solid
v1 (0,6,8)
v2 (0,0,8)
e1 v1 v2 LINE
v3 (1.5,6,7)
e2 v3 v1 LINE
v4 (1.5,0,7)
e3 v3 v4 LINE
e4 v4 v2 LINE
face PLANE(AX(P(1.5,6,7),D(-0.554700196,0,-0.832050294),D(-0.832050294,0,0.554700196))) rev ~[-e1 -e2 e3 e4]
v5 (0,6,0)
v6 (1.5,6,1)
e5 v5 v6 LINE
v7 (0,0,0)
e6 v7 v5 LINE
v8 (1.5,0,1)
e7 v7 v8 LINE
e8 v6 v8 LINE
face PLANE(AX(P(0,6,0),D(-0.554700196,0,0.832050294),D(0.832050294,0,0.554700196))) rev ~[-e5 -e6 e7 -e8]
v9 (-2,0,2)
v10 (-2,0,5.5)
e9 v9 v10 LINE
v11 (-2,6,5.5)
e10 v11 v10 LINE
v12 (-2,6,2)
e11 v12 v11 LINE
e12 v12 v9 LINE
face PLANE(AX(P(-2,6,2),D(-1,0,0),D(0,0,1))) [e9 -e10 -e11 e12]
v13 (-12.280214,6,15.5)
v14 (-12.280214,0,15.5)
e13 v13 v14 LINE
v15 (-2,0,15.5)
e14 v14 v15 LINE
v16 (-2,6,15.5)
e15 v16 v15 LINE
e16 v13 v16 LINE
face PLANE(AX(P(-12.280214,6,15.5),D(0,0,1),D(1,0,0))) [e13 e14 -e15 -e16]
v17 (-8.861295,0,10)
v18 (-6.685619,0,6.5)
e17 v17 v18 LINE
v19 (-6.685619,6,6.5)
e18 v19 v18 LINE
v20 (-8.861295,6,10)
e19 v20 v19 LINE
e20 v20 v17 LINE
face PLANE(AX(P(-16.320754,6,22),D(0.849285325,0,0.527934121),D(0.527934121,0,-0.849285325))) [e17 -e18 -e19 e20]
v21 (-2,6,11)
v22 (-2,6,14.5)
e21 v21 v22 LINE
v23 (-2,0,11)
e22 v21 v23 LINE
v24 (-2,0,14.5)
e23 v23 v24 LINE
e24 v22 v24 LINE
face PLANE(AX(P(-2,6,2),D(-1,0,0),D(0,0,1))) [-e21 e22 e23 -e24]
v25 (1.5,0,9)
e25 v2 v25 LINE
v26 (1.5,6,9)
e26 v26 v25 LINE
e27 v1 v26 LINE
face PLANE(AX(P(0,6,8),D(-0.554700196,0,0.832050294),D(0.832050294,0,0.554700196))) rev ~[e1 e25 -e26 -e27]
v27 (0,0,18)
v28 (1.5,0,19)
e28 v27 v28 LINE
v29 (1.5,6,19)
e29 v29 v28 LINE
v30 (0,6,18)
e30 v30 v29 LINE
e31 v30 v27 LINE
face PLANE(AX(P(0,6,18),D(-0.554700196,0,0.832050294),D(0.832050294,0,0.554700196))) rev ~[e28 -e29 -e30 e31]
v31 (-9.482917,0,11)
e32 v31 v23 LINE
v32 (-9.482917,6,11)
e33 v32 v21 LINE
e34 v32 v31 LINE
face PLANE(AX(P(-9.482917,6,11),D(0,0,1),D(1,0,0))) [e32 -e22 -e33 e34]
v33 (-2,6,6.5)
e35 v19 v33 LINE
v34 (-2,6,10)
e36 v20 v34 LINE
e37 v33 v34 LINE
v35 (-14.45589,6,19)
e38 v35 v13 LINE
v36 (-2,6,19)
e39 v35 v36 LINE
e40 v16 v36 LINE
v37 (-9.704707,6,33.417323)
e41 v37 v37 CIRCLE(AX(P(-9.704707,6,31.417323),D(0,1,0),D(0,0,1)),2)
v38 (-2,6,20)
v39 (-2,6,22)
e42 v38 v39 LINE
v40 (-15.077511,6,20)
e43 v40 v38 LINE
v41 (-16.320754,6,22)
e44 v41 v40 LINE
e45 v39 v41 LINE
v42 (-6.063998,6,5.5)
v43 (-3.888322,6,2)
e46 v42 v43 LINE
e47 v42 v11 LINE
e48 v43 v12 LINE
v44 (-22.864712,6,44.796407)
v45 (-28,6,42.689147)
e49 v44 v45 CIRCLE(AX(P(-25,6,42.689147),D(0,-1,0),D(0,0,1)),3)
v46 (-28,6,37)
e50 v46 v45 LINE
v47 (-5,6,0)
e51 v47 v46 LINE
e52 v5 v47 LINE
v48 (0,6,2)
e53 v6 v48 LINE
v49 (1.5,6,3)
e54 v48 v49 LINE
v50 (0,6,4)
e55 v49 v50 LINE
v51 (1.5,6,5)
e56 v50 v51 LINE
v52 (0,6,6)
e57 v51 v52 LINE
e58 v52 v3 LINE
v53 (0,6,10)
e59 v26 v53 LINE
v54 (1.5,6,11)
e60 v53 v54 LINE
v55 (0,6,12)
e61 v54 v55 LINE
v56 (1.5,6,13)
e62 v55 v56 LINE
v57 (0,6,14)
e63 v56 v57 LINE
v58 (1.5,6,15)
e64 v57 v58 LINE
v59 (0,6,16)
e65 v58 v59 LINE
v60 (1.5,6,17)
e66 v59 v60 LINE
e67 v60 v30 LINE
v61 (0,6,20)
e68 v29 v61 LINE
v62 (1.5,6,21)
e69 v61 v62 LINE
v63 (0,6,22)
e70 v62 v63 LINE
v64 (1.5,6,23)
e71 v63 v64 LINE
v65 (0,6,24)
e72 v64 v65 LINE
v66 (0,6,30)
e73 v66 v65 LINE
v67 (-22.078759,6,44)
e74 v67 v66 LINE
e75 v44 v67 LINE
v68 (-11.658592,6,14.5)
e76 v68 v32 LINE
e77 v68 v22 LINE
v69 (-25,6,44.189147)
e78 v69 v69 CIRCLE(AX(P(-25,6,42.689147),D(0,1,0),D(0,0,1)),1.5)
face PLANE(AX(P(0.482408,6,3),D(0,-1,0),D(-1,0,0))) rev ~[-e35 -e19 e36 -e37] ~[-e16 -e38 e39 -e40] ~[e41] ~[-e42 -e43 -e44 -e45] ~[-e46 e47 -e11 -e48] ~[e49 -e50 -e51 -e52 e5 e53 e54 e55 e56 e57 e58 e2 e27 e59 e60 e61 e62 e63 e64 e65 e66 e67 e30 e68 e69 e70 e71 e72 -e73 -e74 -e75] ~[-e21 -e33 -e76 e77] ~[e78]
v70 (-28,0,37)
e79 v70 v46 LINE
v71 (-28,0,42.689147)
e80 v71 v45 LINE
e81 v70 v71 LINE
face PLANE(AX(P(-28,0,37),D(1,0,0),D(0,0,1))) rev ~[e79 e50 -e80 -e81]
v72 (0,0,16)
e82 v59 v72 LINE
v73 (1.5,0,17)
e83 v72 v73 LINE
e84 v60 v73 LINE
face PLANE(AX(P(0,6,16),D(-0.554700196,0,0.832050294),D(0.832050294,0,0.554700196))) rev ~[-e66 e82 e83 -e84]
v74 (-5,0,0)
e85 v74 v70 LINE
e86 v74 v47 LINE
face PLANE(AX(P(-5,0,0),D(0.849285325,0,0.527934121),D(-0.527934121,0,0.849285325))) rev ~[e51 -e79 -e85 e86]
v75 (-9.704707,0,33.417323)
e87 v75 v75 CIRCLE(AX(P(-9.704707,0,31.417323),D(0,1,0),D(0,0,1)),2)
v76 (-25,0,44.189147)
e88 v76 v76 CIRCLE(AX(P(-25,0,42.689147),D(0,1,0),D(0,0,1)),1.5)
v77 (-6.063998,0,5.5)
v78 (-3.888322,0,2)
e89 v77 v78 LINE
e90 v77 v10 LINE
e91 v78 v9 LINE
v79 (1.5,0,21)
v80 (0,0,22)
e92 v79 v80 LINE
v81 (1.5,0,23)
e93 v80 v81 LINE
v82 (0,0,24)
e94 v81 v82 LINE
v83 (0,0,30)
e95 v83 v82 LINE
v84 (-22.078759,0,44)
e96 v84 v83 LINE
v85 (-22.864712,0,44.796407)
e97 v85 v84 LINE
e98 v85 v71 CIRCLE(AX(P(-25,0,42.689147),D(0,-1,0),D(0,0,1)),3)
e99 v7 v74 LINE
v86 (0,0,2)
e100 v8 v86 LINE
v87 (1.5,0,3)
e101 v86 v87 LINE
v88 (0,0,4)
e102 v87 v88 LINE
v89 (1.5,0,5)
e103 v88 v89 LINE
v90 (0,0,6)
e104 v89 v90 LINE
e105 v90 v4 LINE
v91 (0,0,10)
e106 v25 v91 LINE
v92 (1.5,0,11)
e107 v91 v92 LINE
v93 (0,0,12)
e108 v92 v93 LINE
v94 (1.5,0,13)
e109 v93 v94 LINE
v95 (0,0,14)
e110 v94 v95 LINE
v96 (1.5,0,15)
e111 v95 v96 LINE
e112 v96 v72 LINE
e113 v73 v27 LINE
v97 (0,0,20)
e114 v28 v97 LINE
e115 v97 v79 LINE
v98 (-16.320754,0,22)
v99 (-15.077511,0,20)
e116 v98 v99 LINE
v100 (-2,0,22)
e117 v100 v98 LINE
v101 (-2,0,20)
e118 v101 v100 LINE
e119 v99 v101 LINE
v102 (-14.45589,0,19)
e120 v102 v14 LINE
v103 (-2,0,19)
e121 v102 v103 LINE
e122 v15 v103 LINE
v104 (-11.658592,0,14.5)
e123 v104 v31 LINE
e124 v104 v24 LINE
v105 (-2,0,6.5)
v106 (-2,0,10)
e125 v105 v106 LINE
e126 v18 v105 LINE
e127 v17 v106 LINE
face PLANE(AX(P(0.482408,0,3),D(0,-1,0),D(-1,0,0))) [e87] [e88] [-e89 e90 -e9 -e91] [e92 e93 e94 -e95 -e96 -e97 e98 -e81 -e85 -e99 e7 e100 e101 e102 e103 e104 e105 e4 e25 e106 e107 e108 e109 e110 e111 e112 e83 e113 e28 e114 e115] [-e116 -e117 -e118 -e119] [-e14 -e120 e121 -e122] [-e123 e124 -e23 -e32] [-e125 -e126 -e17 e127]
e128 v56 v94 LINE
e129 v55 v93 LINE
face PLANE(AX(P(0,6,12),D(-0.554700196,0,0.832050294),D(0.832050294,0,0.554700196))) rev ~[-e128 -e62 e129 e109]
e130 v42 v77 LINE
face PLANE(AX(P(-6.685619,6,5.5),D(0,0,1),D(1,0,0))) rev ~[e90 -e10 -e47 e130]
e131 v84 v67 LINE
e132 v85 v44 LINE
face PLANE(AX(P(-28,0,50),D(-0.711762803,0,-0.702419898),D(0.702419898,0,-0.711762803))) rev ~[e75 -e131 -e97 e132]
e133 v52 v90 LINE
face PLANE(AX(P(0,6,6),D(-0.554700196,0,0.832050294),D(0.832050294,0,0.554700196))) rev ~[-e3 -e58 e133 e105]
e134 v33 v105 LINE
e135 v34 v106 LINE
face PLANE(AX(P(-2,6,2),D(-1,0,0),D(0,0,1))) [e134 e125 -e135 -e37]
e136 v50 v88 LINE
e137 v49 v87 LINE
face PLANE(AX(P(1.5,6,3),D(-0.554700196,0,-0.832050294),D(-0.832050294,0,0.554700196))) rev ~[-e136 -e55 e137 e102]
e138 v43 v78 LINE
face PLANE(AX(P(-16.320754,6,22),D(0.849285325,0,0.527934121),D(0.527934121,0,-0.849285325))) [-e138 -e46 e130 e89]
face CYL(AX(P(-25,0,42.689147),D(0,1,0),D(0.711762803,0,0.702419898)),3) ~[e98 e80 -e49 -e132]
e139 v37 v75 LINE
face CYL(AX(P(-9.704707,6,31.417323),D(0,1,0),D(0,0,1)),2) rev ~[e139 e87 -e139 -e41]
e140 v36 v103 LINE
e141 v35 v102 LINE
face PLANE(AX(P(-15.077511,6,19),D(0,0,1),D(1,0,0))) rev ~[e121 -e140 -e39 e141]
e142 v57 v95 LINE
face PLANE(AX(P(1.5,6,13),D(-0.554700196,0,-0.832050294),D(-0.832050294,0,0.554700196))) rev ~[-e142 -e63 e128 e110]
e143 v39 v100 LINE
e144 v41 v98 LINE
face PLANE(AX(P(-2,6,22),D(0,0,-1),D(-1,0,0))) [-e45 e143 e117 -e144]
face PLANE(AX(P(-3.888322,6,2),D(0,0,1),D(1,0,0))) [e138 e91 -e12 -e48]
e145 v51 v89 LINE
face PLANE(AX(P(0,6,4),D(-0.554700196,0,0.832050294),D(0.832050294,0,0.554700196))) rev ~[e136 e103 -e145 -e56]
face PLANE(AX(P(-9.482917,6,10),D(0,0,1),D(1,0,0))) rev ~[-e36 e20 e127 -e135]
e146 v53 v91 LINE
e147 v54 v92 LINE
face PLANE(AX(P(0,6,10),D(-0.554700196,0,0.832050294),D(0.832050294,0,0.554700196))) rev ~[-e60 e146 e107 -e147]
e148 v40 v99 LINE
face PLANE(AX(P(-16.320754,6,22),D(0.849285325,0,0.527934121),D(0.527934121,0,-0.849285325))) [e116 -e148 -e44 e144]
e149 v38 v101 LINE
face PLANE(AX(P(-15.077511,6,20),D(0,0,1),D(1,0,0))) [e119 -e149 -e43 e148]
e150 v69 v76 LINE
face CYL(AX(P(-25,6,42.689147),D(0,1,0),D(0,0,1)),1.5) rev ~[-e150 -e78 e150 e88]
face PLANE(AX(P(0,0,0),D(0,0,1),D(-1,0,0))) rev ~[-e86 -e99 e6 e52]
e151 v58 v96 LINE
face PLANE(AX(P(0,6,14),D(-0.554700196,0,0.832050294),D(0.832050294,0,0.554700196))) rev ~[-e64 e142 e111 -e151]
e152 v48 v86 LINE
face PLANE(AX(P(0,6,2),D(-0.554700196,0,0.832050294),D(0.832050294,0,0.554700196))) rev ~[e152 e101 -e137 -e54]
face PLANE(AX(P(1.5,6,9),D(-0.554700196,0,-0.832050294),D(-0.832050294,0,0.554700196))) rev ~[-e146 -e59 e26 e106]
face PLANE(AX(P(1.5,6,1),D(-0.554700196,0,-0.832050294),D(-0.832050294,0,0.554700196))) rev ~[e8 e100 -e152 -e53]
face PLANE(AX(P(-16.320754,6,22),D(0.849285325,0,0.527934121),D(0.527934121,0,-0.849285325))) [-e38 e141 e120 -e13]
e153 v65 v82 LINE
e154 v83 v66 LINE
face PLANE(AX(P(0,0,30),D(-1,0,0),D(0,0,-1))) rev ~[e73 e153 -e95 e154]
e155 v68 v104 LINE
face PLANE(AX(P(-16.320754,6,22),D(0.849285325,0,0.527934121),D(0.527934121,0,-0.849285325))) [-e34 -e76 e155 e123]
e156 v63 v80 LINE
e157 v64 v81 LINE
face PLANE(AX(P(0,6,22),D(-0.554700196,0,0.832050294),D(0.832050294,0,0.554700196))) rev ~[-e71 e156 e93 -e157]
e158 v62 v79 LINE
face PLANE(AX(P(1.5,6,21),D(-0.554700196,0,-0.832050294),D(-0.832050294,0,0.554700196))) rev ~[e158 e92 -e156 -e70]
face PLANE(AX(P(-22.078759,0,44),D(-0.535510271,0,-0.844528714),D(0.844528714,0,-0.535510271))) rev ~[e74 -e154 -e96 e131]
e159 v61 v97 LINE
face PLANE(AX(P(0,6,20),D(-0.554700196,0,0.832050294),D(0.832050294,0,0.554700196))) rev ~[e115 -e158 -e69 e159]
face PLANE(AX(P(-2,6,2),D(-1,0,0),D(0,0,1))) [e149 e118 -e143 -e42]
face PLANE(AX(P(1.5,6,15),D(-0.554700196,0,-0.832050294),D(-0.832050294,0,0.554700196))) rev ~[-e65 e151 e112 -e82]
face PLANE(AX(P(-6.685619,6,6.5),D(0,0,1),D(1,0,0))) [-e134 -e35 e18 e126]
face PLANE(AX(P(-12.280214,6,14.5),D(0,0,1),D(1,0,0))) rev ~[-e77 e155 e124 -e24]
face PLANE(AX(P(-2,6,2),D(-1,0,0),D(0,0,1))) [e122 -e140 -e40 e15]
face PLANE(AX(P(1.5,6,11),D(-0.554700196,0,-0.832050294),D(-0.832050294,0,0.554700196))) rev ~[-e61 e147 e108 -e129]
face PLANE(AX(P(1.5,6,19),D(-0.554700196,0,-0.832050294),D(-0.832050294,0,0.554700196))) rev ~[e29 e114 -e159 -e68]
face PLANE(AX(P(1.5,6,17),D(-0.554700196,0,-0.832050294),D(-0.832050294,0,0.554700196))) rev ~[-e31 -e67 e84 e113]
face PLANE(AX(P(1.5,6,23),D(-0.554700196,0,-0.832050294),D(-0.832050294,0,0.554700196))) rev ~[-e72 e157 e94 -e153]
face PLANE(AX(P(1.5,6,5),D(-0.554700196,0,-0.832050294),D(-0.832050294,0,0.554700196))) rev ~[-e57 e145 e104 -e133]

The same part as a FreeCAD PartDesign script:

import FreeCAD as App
import Part
import Sketcher

V = App.Vector
Q = App.Units.Quantity


def edges_at(feature, points):
    """Names of the edges that pass closest to the given points."""
    edges = feature.Shape.Edges
    near = lambda p: min(range(len(edges)), key=lambda i: edges[i].distToShape(Part.Vertex(*p))[0])
    return sorted({f"Edge{near(p) + 1}" for p in points})

doc = App.newDocument("Part")
body = doc.addObject("PartDesign::Body", "Body")

sketch1 = body.newObject("Sketcher::SketchObject", "Sketch")
sketch1.AttachmentSupport = (doc.getObject("XZ_Plane"), [""])
sketch1.MapMode = "FlatFace"
sketch1.addGeometry(Part.LineSegment(V(0, 0, 0), V(-5, 0, 0)), False)
sketch1.addGeometry(Part.LineSegment(V(-5, 0, 0), V(-28, 37, 0)), False)
sketch1.addGeometry(Part.LineSegment(V(-28, 37, 0), V(-28, 50, 0)), False)
sketch1.addGeometry(Part.LineSegment(V(-28, 50, 0), V(-22, 44, 0)), False)
sketch1.addGeometry(Part.LineSegment(V(-22, 44, 0), V(0, 30, 0)), False)
sketch1.addGeometry(Part.LineSegment(V(0, 30, 0), V(0, 0, 0)), False)
sketch1.addConstraint(Sketcher.Constraint("Coincident", 0, 2, 1, 1))
sketch1.addConstraint(Sketcher.Constraint("Coincident", 1, 2, 2, 1))
sketch1.addConstraint(Sketcher.Constraint("Coincident", 2, 2, 3, 1))
sketch1.addConstraint(Sketcher.Constraint("Coincident", 3, 2, 4, 1))
sketch1.addConstraint(Sketcher.Constraint("Coincident", 4, 2, 5, 1))
sketch1.addConstraint(Sketcher.Constraint("Coincident", 5, 2, 0, 1))
sketch1.addConstraint(Sketcher.Constraint("Horizontal", 0))
sketch1.addConstraint(Sketcher.Constraint("Vertical", 2))
sketch1.addConstraint(Sketcher.Constraint("Vertical", 5))
sketch1.addConstraint(Sketcher.Constraint("Coincident", 5, 2, -1, 1))
sketch1.addConstraint(Sketcher.Constraint("DistanceX", 0, 2, 0, 1, Q("5 mm")))
sketch1.addConstraint(Sketcher.Constraint("DistanceY", 2, 1, 2, 2, Q("13 mm")))
sketch1.addConstraint(Sketcher.Constraint("DistanceY", 5, 2, 5, 1, Q("30 mm")))
sketch1.addConstraint(Sketcher.Constraint("DistanceX", 1, 2, -1, 1, Q("28 mm")))
sketch1.addConstraint(Sketcher.Constraint("DistanceY", -1, 1, 1, 2, Q("37 mm")))
sketch1.addConstraint(Sketcher.Constraint("DistanceY", -1, 1, 3, 2, Q("44 mm")))
sketch1.addConstraint(Sketcher.Constraint("Distance", 4, Q("26.143289 mm")))
pad1 = body.newObject("PartDesign::Pad", "Pad")
pad1.Profile = sketch1
pad1.Length = 6
pad1.Reversed = True

sketch2 = body.newObject("Sketcher::SketchObject", "Sketch001")
sketch2.AttachmentSupport = (doc.getObject("XZ_Plane"), [""])
sketch2.MapMode = "FlatFace"
sketch2.AttachmentOffset = App.Placement(V(0, 0, -6), App.Rotation())
sketch2.addGeometry(Part.LineSegment(V(-2, 2, 0), V(-3.9, 2, 0)), False)
sketch2.addGeometry(Part.LineSegment(V(-3.9, 2, 0), V(-16.3, 22, 0)), False)
sketch2.addGeometry(Part.LineSegment(V(-16.3, 22, 0), V(-2, 22, 0)), False)
sketch2.addGeometry(Part.LineSegment(V(-2, 22, 0), V(-2, 2, 0)), False)
sketch2.addConstraint(Sketcher.Constraint("Coincident", 0, 2, 1, 1))
sketch2.addConstraint(Sketcher.Constraint("Coincident", 1, 2, 2, 1))
sketch2.addConstraint(Sketcher.Constraint("Coincident", 2, 2, 3, 1))
sketch2.addConstraint(Sketcher.Constraint("Coincident", 3, 2, 0, 1))
sketch2.addConstraint(Sketcher.Constraint("Horizontal", 0))
sketch2.addConstraint(Sketcher.Constraint("Horizontal", 2))
sketch2.addConstraint(Sketcher.Constraint("Vertical", 3))
sketch2.addConstraint(Sketcher.Constraint("DistanceY", 3, 2, 3, 1, Q("20 mm")))
sketch2.addConstraint(Sketcher.Constraint("DistanceY", -1, 1, 0, 2, Q("2 mm")))
sketch2.addConstraint(Sketcher.Constraint("DistanceX", 2, 2, -1, 1, Q("2 mm")))
sketch2.addConstraint(Sketcher.Constraint("Distance", 1, Q("23.549212 mm")))
sketch2.addConstraint(Sketcher.Constraint("DistanceX", 0, 2, 0, 1, Q("1.888322 mm")))
pocket1 = body.newObject("PartDesign::Pocket", "Pocket")
pocket1.Profile = sketch2
pocket1.Type = "ThroughAll"
pocket1.Reversed = True

sketch3 = body.newObject("Sketcher::SketchObject", "Sketch002")
sketch3.AttachmentSupport = (doc.getObject("XZ_Plane"), [""])
sketch3.MapMode = "FlatFace"
sketch3.AttachmentOffset = App.Placement(V(0, 0, -6), App.Rotation())
sketch3.addGeometry(Part.LineSegment(V(-6.7, 5.5, 0), V(-6.7, 6.5, 0)), False)
sketch3.addGeometry(Part.LineSegment(V(-6.7, 6.5, 0), V(-2, 6.5, 0)), False)
sketch3.addGeometry(Part.LineSegment(V(-2, 6.5, 0), V(-2, 5.5, 0)), False)
sketch3.addGeometry(Part.LineSegment(V(-2, 5.5, 0), V(-6.7, 5.5, 0)), False)
sketch3.addGeometry(Part.LineSegment(V(-9.5, 10, 0), V(-9.5, 11, 0)), False)
sketch3.addGeometry(Part.LineSegment(V(-9.5, 11, 0), V(-2, 11, 0)), False)
sketch3.addGeometry(Part.LineSegment(V(-2, 11, 0), V(-2, 10, 0)), False)
sketch3.addGeometry(Part.LineSegment(V(-2, 10, 0), V(-9.5, 10, 0)), False)
sketch3.addGeometry(Part.LineSegment(V(-12.3, 14.5, 0), V(-12.3, 15.5, 0)), False)
sketch3.addGeometry(Part.LineSegment(V(-12.3, 15.5, 0), V(-2, 15.5, 0)), False)
sketch3.addGeometry(Part.LineSegment(V(-2, 15.5, 0), V(-2, 14.5, 0)), False)
sketch3.addGeometry(Part.LineSegment(V(-2, 14.5, 0), V(-12.3, 14.5, 0)), False)
sketch3.addGeometry(Part.LineSegment(V(-15.1, 19, 0), V(-15.1, 20, 0)), False)
sketch3.addGeometry(Part.LineSegment(V(-15.1, 20, 0), V(-2, 20, 0)), False)
sketch3.addGeometry(Part.LineSegment(V(-2, 20, 0), V(-2, 19, 0)), False)
sketch3.addGeometry(Part.LineSegment(V(-2, 19, 0), V(-15.1, 19, 0)), False)
sketch3.addConstraint(Sketcher.Constraint("Coincident", 0, 2, 1, 1))
sketch3.addConstraint(Sketcher.Constraint("Coincident", 1, 2, 2, 1))
sketch3.addConstraint(Sketcher.Constraint("Coincident", 2, 2, 3, 1))
sketch3.addConstraint(Sketcher.Constraint("Coincident", 3, 2, 0, 1))
sketch3.addConstraint(Sketcher.Constraint("Coincident", 4, 2, 5, 1))
sketch3.addConstraint(Sketcher.Constraint("Coincident", 5, 2, 6, 1))
sketch3.addConstraint(Sketcher.Constraint("Coincident", 6, 2, 7, 1))
sketch3.addConstraint(Sketcher.Constraint("Coincident", 7, 2, 4, 1))
sketch3.addConstraint(Sketcher.Constraint("Coincident", 8, 2, 9, 1))
sketch3.addConstraint(Sketcher.Constraint("Coincident", 9, 2, 10, 1))
sketch3.addConstraint(Sketcher.Constraint("Coincident", 10, 2, 11, 1))
sketch3.addConstraint(Sketcher.Constraint("Coincident", 11, 2, 8, 1))
sketch3.addConstraint(Sketcher.Constraint("Coincident", 12, 2, 13, 1))
sketch3.addConstraint(Sketcher.Constraint("Coincident", 13, 2, 14, 1))
sketch3.addConstraint(Sketcher.Constraint("Coincident", 14, 2, 15, 1))
sketch3.addConstraint(Sketcher.Constraint("Coincident", 15, 2, 12, 1))
sketch3.addConstraint(Sketcher.Constraint("Vertical", 0))
sketch3.addConstraint(Sketcher.Constraint("Horizontal", 1))
sketch3.addConstraint(Sketcher.Constraint("Vertical", 2))
sketch3.addConstraint(Sketcher.Constraint("Horizontal", 3))
sketch3.addConstraint(Sketcher.Constraint("Vertical", 4))
sketch3.addConstraint(Sketcher.Constraint("Horizontal", 5))
sketch3.addConstraint(Sketcher.Constraint("Vertical", 6))
sketch3.addConstraint(Sketcher.Constraint("Horizontal", 7))
sketch3.addConstraint(Sketcher.Constraint("Vertical", 8))
sketch3.addConstraint(Sketcher.Constraint("Horizontal", 9))
sketch3.addConstraint(Sketcher.Constraint("Vertical", 10))
sketch3.addConstraint(Sketcher.Constraint("Horizontal", 11))
sketch3.addConstraint(Sketcher.Constraint("Vertical", 12))
sketch3.addConstraint(Sketcher.Constraint("Horizontal", 13))
sketch3.addConstraint(Sketcher.Constraint("Vertical", 14))
sketch3.addConstraint(Sketcher.Constraint("Horizontal", 15))
sketch3.addConstraint(Sketcher.Constraint("Vertical", 2, 2, 5, 2))
sketch3.addConstraint(Sketcher.Constraint("Vertical", 6, 2, 9, 2))
sketch3.addConstraint(Sketcher.Constraint("Vertical", 10, 2, 13, 2))
sketch3.addConstraint(Sketcher.Constraint("Equal", 2, 4))
sketch3.addConstraint(Sketcher.Constraint("Equal", 6, 8))
sketch3.addConstraint(Sketcher.Constraint("Equal", 10, 12))
sketch3.addConstraint(Sketcher.Constraint("DistanceY", 0, 1, 0, 2, Q("1 mm")))
sketch3.addConstraint(Sketcher.Constraint("DistanceX", 1, 2, -1, 1, Q("2 mm")))
sketch3.addConstraint(Sketcher.Constraint("DistanceY", -1, 1, 4, 2, Q("11 mm")))
sketch3.addConstraint(Sketcher.Constraint("DistanceY", -1, 1, 12, 2, Q("20 mm")))
sketch3.addConstraint(Sketcher.Constraint("DistanceY", 0, 2, 8, 2, Q("9 mm")))
sketch3.addConstraint(Sketcher.Constraint("DistanceY", -1, 1, 0, 2, Q("6.5 mm")))
sketch3.addConstraint(Sketcher.Constraint("DistanceX", 1, 1, 1, 2, Q("4.685619 mm")))
sketch3.addConstraint(Sketcher.Constraint("DistanceX", 13, 1, 13, 2, Q("13.077511 mm")))
sketch3.addConstraint(Sketcher.Constraint("DistanceX", 5, 1, 5, 2, Q("7.482917 mm")))
sketch3.addConstraint(Sketcher.Constraint("DistanceX", 9, 1, 9, 2, Q("10.280214 mm")))
pad2 = body.newObject("PartDesign::Pad", "Pad001")
pad2.Profile = sketch3
pad2.Length = 6

sketch4 = body.newObject("Sketcher::SketchObject", "Sketch003")
sketch4.AttachmentSupport = (doc.getObject("XZ_Plane"), [""])
sketch4.MapMode = "FlatFace"
sketch4.AttachmentOffset = App.Placement(V(0, 0, -6), App.Rotation())
sketch4.addGeometry(Part.LineSegment(V(1.5, 1, 0), V(0, 0, 0)), False)
sketch4.addGeometry(Part.LineSegment(V(0, 0, 0), V(0, 2, 0)), False)
sketch4.addGeometry(Part.LineSegment(V(0, 2, 0), V(1.5, 1, 0)), False)
sketch4.addConstraint(Sketcher.Constraint("Coincident", 0, 2, 1, 1))
sketch4.addConstraint(Sketcher.Constraint("Coincident", 1, 2, 2, 1))
sketch4.addConstraint(Sketcher.Constraint("Coincident", 2, 2, 0, 1))
sketch4.addConstraint(Sketcher.Constraint("Vertical", 1))
sketch4.addConstraint(Sketcher.Constraint("Coincident", 0, 2, -1, 1))
sketch4.addConstraint(Sketcher.Constraint("Equal", 0, 2))
sketch4.addConstraint(Sketcher.Constraint("DistanceY", 1, 1, 1, 2, Q("2 mm")))
sketch4.addConstraint(Sketcher.Constraint("DistanceX", -1, 1, 2, 2, Q("1.5 mm")))
pad3 = body.newObject("PartDesign::Pad", "Pad002")
pad3.Profile = sketch4
pad3.Length = 6
doc.recompute()

linearpattern = body.newObject("PartDesign::LinearPattern", "LinearPattern")
linearpattern.Originals = [pad3]
linearpattern.Direction = (doc.getObject("Z_Axis"), [""])
linearpattern.Mode = "offset"
linearpattern.Offset = 2
linearpattern.Occurrences = 12
body.Tip = linearpattern
doc.recompute()

fillet = body.newObject("PartDesign::Fillet", "Fillet")
fillet.Base = (linearpattern, edges_at(linearpattern, [(-28, 3, 50)]))
fillet.Radius = 3

sketch5 = body.newObject("Sketcher::SketchObject", "Sketch004")
sketch5.AttachmentSupport = (doc.getObject("XZ_Plane"), [""])
sketch5.MapMode = "FlatFace"
sketch5.AttachmentOffset = App.Placement(V(0, 0, -6), App.Rotation())
sketch5.addGeometry(Part.Circle(V(-25, 42.7, 0), V(0, 0, 1), 1.5), False)
sketch5.addGeometry(Part.Circle(V(-9.7, 31.4, 0), V(0, 0, 1), 2), False)
sketch5.addConstraint(Sketcher.Constraint("Diameter", 0, Q("3 mm")))
sketch5.addConstraint(Sketcher.Constraint("Diameter", 1, Q("4 mm")))
sketch5.addConstraint(Sketcher.Constraint("DistanceX", 0, 3, -1, 1, Q("25 mm")))
sketch5.addConstraint(Sketcher.Constraint("DistanceY", -1, 1, 0, 3, Q("42.689147 mm")))
sketch5.addConstraint(Sketcher.Constraint("DistanceX", 1, 3, -1, 1, Q("9.704707 mm")))
sketch5.addConstraint(Sketcher.Constraint("DistanceY", -1, 1, 1, 3, Q("31.417323 mm")))
pocket2 = body.newObject("PartDesign::Pocket", "Pocket001")
pocket2.Profile = sketch5
pocket2.Type = "ThroughAll"
pocket2.Reversed = True

doc.recompute()
